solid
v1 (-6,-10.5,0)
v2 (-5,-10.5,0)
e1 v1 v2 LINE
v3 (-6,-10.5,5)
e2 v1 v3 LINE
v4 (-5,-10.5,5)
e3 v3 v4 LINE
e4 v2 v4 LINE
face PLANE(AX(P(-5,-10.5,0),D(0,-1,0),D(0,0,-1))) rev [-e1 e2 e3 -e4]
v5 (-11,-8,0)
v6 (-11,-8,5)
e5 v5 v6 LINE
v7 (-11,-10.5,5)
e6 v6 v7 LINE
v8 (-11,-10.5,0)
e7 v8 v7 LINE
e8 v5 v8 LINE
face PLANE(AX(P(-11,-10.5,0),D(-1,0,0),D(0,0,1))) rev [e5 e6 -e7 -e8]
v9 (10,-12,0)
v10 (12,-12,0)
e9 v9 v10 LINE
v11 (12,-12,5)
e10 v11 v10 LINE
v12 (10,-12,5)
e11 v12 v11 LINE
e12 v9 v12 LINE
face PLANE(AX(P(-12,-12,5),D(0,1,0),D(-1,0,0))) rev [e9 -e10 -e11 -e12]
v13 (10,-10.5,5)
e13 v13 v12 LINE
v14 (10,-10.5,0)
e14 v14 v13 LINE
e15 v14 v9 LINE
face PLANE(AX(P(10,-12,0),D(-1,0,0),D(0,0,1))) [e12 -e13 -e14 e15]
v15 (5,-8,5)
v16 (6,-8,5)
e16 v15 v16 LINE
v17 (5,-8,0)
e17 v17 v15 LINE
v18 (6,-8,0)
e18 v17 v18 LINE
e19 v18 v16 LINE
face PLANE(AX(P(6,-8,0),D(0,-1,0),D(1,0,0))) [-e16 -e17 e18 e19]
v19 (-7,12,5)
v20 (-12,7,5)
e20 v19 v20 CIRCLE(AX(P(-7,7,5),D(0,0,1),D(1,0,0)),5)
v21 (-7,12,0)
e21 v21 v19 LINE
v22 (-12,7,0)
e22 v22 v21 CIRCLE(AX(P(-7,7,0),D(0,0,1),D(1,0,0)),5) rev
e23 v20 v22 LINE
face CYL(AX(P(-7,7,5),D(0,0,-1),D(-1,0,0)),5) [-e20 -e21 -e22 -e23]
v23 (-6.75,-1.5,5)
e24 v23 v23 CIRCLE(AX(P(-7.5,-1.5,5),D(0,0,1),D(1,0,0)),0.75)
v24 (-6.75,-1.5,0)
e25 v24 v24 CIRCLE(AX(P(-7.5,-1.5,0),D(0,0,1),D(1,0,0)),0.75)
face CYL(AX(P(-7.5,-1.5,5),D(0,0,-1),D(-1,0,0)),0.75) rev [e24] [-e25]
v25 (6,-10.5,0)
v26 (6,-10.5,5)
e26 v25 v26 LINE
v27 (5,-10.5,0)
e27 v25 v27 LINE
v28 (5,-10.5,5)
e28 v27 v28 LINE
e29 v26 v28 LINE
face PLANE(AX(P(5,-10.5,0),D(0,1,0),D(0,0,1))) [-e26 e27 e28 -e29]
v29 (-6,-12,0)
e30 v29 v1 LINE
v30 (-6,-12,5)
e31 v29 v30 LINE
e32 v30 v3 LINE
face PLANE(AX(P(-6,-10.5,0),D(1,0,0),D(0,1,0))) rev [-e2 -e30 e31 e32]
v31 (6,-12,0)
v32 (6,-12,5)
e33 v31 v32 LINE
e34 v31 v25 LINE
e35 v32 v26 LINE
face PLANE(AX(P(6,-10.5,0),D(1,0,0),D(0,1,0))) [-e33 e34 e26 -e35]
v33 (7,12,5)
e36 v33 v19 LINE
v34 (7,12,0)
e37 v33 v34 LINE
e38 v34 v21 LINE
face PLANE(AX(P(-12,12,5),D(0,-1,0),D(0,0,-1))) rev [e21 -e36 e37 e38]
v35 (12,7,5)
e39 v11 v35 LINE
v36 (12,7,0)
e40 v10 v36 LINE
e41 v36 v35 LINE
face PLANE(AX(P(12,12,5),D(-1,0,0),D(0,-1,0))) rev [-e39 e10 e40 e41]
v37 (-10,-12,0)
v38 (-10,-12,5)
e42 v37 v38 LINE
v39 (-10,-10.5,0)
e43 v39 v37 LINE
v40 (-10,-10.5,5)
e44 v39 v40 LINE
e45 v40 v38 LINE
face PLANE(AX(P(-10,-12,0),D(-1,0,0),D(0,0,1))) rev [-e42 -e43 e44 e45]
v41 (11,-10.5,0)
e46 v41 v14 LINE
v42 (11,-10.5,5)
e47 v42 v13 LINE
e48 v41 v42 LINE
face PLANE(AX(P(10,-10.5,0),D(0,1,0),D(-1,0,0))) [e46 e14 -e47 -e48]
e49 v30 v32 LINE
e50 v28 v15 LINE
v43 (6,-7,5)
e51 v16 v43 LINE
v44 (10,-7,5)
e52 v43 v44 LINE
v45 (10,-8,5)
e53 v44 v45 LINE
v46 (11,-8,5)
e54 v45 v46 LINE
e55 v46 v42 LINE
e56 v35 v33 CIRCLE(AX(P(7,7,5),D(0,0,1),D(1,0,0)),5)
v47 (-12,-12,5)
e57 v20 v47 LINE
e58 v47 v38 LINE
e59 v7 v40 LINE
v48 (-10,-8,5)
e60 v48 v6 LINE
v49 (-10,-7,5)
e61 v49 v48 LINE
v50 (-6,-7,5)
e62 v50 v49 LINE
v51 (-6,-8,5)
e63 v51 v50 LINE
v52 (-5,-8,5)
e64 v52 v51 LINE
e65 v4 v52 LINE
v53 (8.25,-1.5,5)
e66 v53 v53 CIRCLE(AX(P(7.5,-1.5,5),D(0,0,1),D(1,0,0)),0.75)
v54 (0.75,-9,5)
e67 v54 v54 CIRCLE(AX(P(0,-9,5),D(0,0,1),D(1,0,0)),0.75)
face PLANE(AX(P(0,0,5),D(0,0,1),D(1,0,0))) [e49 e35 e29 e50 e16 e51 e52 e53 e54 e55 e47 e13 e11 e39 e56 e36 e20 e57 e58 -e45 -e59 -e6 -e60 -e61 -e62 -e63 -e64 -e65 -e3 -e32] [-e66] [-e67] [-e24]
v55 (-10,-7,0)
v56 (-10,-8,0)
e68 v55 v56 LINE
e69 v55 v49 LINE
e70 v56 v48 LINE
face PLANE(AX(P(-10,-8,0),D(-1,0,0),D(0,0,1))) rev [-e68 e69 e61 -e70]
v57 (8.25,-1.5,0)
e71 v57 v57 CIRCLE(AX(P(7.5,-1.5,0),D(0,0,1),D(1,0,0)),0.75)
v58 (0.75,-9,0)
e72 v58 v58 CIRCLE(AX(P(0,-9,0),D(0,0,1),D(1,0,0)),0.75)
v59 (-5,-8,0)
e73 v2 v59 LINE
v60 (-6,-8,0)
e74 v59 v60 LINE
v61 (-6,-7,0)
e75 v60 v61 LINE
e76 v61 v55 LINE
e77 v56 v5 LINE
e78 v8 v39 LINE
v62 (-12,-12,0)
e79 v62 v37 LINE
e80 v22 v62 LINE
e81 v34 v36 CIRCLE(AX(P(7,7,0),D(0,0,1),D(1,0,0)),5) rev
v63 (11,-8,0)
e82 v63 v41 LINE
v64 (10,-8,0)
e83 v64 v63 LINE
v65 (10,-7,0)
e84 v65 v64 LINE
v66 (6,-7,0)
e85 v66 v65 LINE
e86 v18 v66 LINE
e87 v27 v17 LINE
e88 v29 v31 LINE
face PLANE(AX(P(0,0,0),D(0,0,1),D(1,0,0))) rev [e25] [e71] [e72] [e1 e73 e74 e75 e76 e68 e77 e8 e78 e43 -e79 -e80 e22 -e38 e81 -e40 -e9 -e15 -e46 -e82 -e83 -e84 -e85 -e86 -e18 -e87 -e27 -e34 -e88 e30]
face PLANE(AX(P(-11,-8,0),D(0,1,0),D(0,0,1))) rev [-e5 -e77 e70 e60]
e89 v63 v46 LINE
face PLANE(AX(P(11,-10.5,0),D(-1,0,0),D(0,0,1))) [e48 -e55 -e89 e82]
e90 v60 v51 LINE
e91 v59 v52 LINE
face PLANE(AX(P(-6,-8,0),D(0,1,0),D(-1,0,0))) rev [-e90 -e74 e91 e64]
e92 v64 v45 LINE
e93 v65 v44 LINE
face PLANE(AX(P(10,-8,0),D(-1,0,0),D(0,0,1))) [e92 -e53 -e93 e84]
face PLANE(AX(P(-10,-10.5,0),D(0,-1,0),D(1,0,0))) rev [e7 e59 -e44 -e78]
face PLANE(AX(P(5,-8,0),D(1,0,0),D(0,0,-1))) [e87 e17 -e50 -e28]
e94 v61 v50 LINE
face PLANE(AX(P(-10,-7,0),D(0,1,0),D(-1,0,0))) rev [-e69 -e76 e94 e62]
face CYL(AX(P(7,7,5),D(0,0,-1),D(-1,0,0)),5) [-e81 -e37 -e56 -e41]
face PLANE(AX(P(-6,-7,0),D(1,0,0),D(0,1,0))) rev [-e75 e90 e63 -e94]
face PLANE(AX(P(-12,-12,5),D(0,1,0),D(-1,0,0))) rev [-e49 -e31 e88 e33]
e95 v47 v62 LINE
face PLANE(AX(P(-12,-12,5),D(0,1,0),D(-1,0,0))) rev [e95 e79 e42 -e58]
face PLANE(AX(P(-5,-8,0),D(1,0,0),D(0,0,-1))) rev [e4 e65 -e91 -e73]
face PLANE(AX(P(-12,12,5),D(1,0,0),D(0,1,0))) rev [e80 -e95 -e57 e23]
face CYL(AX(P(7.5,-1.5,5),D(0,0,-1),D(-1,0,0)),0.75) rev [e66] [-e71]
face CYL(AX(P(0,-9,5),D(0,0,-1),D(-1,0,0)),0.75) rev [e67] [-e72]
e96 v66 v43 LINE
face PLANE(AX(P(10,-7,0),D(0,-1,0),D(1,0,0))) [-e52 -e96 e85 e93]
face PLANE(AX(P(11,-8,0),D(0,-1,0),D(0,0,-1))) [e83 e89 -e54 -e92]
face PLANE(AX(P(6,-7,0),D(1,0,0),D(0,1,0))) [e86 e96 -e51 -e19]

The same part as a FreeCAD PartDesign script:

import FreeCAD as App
import Part
import Sketcher
from FreeCAD import Vector
Q = App.Units.Quantity


def edges_at(feature, points):
    """Names of the edges that pass closest to the given points."""
    edges = feature.Shape.Edges
    near = lambda p: min(range(len(edges)), key=lambda i: edges[i].distToShape(Part.Vertex(*p))[0])
    return sorted({f"Edge{near(p) + 1}" for p in points})


def add_polygon(sketch, points):
    """Adds a closed chain of lines whose ends are joined by coincident constraints."""
    first, n = sketch.GeometryCount, len(points)
    for a, b in zip(points, points[1:] + points[:1]):
        sketch.addGeometry(Part.LineSegment(App.Vector(*a, 0), App.Vector(*b, 0)), False)
    for i in range(n):
        sketch.addConstraint(Sketcher.Constraint("Coincident", first + i, 2, first + (i + 1) % n, 1))

doc = App.newDocument("Part")
body = doc.addObject("PartDesign::Body", "Body")

# Sketch on XY plane
sketch1 = body.newObject("Sketcher::SketchObject", "Sketch")
sketch1.AttachmentSupport = (doc.getObject("XY_Plane"), [""])
sketch1.MapMode = "FlatFace"
add_polygon(sketch1, [(-12, 12), (-12, -12), (12, -12), (12, 12)])  # lines 0-3
sketch1.addGeometry(Part.Circle(Vector(0, -9, 0), Vector(0, 0, 1), 0.8), False)  # 4
sketch1.addGeometry(Part.Circle(Vector(-7.5, -1.5, 0), Vector(0, 0, 1), 0.8), False)  # 5
sketch1.addGeometry(Part.Circle(Vector(7.5, -1.5, 0), Vector(0, 0, 1), 0.8), False)  # 6
sketch1.addConstraint([
    Sketcher.Constraint("Vertical", 0),
    Sketcher.Constraint("Horizontal", 1),
    Sketcher.Constraint("Vertical", 2),
    Sketcher.Constraint("Horizontal", 3),
    Sketcher.Constraint("Equal", 4, 5),
    Sketcher.Constraint("Equal", 5, 6),
    Sketcher.Constraint("Symmetric", 0, 2, 2, 2, -1, 1),
    Sketcher.Constraint("Symmetric", 5, 3, 6, 3, -2),
    Sketcher.Constraint("PointOnObject", 4, 3, -2),
    Sketcher.Constraint("Equal", 3, 0),
    Sketcher.Constraint("Diameter", 4, Q("1.5 mm")),
    Sketcher.Constraint("DistanceX", 1, 1, 1, 2, Q("24 mm")),
    Sketcher.Constraint("DistanceY", 4, 3, -1, 1, Q("9 mm")),
    Sketcher.Constraint("DistanceX", 5, 3, 6, 3, Q("15 mm")),
    Sketcher.Constraint("DistanceY", 5, 3, -1, 1, Q("1.5 mm")),
])
pad1 = body.newObject("PartDesign::Pad", "Pad")
pad1.Profile = sketch1
pad1.Length = 5
doc.recompute()

fillet = body.newObject("PartDesign::Fillet", "Fillet")
fillet.Base = (pad1, edges_at(pad1, [(-12, 12, 2.5), (12, 12, 2.5)]))
fillet.Radius = 5

# Sketch on XY plane
sketch2 = body.newObject("Sketcher::SketchObject", "Sketch001")
sketch2.AttachmentSupport = (doc.getObject("XY_Plane"), [""])
sketch2.MapMode = "FlatFace"
sketch2.AttachmentOffset = App.Placement(Vector(0, 0, 5), App.Rotation())
add_polygon(sketch2, [(-10, -10.5), (-10, -12), (-6, -12), (-6, -10.5), (-5, -10.5), (-5, -8), (-6, -8), (-6, -7), (-10, -7), (-10, -8), (-11, -8), (-11, -10.5)])  # lines 0-11
sketch2.addConstraint([
    Sketcher.Constraint("Vertical", 0),
    Sketcher.Constraint("Horizontal", 1),
    Sketcher.Constraint("Vertical", 2),
    Sketcher.Constraint("Horizontal", 3),
    Sketcher.Constraint("Vertical", 4),
    Sketcher.Constraint("Horizontal", 5),
    Sketcher.Constraint("Vertical", 6),
    Sketcher.Constraint("Horizontal", 7),
    Sketcher.Constraint("Vertical", 8),
    Sketcher.Constraint("Horizontal", 9),
    Sketcher.Constraint("Vertical", 10),
    Sketcher.Constraint("Horizontal", 11),
    Sketcher.Constraint("Horizontal", 5, 2, 8, 2),
    Sketcher.Constraint("Horizontal", 3, 2, 10, 2),
    Sketcher.Constraint("Vertical", 2, 2, 5, 2),
    Sketcher.Constraint("Vertical", 0, 2, 7, 2),
    Sketcher.Constraint("Equal", 5, 9),
    Sketcher.Constraint("Equal", 11, 6),
    Sketcher.Constraint("DistanceX", 1, 1, 1, 2, Q("4 mm")),
    Sketcher.Constraint("DistanceX", 3, 1, 3, 2, Q("1 mm")),
    Sketcher.Constraint("DistanceY", 0, 2, 0, 1, Q("1.5 mm")),
    Sketcher.Constraint("DistanceY", 4, 1, 4, 2, Q("2.5 mm")),
    Sketcher.Constraint("DistanceX", 0, 2, -1, 1, Q("10 mm")),
    Sketcher.Constraint("DistanceY", 0, 2, -1, 1, Q("12 mm")),
])
pocket1 = body.newObject("PartDesign::Pocket", "Pocket")
pocket1.Profile = sketch2
pocket1.Length = 5
doc.recompute()

mirrored = body.newObject("PartDesign::Mirrored", "Mirrored")
mirrored.Originals = [pocket1]
mirrored.MirrorPlane = (doc.getObject("YZ_Plane"), [""])
body.Tip = mirrored

doc.recompute()
